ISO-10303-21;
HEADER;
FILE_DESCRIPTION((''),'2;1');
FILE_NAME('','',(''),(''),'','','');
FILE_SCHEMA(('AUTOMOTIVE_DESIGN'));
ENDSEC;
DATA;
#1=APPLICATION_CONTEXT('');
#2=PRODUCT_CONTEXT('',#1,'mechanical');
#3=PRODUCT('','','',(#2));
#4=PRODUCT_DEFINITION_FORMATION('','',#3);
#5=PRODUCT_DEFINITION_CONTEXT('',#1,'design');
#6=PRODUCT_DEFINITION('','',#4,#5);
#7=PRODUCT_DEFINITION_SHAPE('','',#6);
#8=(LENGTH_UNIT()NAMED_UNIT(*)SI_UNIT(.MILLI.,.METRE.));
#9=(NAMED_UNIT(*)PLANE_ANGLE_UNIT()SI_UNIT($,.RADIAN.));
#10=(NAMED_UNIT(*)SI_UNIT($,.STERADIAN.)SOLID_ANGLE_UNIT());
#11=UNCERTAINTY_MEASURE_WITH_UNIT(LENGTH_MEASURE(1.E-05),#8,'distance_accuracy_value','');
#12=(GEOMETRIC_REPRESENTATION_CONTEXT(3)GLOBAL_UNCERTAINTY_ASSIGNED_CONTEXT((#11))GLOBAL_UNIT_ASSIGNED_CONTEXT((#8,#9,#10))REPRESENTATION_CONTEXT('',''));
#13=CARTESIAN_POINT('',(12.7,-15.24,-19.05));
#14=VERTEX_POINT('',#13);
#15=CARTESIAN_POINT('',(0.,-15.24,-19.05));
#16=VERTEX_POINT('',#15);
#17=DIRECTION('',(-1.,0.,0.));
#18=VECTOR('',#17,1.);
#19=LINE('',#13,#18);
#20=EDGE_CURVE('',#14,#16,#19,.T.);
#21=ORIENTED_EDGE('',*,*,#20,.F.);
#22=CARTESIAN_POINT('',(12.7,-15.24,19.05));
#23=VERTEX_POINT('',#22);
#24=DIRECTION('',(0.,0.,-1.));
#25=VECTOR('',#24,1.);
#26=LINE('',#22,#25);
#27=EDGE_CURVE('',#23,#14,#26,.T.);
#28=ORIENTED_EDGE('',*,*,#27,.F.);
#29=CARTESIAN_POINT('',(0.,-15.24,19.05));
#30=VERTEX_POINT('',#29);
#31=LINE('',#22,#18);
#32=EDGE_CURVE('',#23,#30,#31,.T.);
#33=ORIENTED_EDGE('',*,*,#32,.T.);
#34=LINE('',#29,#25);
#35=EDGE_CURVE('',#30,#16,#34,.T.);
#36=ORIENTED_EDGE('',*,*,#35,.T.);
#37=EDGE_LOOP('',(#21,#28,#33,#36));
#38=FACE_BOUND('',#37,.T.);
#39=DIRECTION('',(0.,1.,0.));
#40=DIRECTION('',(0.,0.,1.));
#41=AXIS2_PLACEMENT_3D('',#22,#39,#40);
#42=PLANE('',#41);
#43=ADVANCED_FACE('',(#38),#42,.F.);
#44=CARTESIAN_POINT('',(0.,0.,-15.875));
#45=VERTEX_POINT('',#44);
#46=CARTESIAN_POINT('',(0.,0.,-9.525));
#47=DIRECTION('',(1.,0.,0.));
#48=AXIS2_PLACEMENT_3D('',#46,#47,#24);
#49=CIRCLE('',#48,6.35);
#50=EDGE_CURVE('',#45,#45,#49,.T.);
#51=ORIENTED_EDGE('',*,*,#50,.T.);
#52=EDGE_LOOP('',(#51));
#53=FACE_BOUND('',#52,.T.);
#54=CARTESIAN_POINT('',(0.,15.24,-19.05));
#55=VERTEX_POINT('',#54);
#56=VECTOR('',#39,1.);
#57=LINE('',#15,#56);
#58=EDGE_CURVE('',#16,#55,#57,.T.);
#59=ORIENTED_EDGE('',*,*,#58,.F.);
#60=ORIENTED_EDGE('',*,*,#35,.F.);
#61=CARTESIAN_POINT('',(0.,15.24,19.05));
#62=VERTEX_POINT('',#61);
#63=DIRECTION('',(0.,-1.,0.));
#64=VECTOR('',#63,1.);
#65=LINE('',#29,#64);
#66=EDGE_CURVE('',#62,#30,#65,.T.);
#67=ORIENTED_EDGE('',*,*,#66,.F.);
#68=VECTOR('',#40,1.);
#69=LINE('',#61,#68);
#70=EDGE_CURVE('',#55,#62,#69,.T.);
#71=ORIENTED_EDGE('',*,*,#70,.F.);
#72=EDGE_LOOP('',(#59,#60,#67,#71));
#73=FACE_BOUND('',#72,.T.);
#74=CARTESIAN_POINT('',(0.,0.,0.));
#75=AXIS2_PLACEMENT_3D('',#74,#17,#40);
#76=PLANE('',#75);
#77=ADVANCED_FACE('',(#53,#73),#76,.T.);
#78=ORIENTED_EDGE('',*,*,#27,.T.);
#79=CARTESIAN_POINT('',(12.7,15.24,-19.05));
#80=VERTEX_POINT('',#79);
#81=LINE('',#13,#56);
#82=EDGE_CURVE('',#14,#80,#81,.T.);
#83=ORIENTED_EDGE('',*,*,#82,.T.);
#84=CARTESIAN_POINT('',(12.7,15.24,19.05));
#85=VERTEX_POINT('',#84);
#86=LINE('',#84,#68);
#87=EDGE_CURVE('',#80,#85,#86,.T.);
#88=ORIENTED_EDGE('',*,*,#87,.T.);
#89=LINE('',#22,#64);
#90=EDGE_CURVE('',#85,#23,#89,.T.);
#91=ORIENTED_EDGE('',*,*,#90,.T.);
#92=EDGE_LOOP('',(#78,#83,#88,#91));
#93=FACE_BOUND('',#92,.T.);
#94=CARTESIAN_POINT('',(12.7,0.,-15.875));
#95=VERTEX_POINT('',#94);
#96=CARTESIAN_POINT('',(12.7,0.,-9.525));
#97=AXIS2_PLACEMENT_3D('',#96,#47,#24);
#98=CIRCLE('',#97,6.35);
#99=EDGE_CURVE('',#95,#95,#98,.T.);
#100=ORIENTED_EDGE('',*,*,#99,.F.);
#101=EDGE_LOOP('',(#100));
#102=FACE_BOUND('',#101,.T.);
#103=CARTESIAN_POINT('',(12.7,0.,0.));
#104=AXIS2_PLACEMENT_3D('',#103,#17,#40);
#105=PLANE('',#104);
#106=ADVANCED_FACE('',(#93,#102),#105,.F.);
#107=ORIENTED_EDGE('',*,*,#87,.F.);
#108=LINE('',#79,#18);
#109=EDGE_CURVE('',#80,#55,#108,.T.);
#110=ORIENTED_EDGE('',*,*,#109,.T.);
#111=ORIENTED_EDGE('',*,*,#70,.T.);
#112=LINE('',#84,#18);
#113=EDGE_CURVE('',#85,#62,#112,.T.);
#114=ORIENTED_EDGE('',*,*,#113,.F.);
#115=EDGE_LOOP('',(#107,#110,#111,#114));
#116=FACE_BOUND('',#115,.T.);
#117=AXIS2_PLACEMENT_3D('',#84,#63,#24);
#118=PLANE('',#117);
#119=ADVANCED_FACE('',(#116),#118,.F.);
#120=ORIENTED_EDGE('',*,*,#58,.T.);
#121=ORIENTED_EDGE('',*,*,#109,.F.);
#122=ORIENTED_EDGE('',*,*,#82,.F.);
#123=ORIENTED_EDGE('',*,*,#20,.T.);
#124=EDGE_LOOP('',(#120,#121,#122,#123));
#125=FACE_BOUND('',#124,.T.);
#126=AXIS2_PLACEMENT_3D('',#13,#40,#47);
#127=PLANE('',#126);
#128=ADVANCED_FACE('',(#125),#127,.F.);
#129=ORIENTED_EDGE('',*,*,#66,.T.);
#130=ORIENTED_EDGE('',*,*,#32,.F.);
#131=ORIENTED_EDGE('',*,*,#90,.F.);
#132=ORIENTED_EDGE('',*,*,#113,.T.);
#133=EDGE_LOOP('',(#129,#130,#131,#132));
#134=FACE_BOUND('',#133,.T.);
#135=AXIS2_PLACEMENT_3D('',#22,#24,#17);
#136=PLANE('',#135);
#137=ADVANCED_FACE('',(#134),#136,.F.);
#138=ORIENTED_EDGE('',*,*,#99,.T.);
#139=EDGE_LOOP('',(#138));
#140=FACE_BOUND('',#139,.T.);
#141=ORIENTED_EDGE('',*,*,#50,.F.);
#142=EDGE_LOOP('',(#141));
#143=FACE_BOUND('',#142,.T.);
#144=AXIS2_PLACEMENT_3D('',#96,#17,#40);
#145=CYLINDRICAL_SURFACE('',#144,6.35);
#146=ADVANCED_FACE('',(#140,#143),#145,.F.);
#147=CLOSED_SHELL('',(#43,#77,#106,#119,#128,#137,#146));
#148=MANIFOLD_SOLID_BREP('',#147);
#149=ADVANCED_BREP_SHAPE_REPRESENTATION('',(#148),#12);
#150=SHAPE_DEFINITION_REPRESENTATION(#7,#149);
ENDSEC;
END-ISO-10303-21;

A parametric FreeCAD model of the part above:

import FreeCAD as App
import Part
import Sketcher

V = App.Vector
Q = App.Units.Quantity


def add_polygon(sketch, points):
    """Adds a closed chain of lines whose ends are joined by coincident constraints."""
    first, n = sketch.GeometryCount, len(points)
    for a, b in zip(points, points[1:] + points[:1]):
        sketch.addGeometry(Part.LineSegment(App.Vector(*a, 0), App.Vector(*b, 0)), False)
    for i in range(n):
        sketch.addConstraint(Sketcher.Constraint("Coincident", first + i, 2, first + (i + 1) % n, 1))

doc = App.newDocument("Part")
body = doc.addObject("PartDesign::Body", "Body")

sketch1 = body.newObject("Sketcher::SketchObject", "Sketch")
sketch1.AttachmentSupport = (doc.getObject("YZ_Plane"), [""])
sketch1.MapMode = "FlatFace"
add_polygon(sketch1, [(15, 19), (-15, 19), (-15, -19), (15, -19)])
sketch1.addGeometry(Part.Circle(V(0, -10, 0), V(0, 0, 1), 6), False)
sketch1.addConstraint(Sketcher.Constraint("Horizontal", 0))
sketch1.addConstraint(Sketcher.Constraint("Vertical", 1))
sketch1.addConstraint(Sketcher.Constraint("Horizontal", 2))
sketch1.addConstraint(Sketcher.Constraint("Vertical", 3))
sketch1.addConstraint(Sketcher.Constraint("Symmetric", 0, 2, 2, 2, -1, 1))
sketch1.addConstraint(Sketcher.Constraint("PointOnObject", 4, 3, -2))
sketch1.addConstraint(Sketcher.Constraint("Diameter", 4, Q("0.5 in")))
sketch1.addConstraint(Sketcher.Constraint("DistanceX", 0, 2, 0, 1, Q("1.2 in")))
sketch1.addConstraint(Sketcher.Constraint("DistanceY", 1, 2, 1, 1, Q("1.5 in")))
sketch1.addConstraint(Sketcher.Constraint("DistanceY", 4, 3, -1, 1, Q("0.375 in")))
pad1 = body.newObject("PartDesign::Pad", "Pad")
pad1.Profile = sketch1
pad1.Length = Q("0.5 in")

doc.recompute()
